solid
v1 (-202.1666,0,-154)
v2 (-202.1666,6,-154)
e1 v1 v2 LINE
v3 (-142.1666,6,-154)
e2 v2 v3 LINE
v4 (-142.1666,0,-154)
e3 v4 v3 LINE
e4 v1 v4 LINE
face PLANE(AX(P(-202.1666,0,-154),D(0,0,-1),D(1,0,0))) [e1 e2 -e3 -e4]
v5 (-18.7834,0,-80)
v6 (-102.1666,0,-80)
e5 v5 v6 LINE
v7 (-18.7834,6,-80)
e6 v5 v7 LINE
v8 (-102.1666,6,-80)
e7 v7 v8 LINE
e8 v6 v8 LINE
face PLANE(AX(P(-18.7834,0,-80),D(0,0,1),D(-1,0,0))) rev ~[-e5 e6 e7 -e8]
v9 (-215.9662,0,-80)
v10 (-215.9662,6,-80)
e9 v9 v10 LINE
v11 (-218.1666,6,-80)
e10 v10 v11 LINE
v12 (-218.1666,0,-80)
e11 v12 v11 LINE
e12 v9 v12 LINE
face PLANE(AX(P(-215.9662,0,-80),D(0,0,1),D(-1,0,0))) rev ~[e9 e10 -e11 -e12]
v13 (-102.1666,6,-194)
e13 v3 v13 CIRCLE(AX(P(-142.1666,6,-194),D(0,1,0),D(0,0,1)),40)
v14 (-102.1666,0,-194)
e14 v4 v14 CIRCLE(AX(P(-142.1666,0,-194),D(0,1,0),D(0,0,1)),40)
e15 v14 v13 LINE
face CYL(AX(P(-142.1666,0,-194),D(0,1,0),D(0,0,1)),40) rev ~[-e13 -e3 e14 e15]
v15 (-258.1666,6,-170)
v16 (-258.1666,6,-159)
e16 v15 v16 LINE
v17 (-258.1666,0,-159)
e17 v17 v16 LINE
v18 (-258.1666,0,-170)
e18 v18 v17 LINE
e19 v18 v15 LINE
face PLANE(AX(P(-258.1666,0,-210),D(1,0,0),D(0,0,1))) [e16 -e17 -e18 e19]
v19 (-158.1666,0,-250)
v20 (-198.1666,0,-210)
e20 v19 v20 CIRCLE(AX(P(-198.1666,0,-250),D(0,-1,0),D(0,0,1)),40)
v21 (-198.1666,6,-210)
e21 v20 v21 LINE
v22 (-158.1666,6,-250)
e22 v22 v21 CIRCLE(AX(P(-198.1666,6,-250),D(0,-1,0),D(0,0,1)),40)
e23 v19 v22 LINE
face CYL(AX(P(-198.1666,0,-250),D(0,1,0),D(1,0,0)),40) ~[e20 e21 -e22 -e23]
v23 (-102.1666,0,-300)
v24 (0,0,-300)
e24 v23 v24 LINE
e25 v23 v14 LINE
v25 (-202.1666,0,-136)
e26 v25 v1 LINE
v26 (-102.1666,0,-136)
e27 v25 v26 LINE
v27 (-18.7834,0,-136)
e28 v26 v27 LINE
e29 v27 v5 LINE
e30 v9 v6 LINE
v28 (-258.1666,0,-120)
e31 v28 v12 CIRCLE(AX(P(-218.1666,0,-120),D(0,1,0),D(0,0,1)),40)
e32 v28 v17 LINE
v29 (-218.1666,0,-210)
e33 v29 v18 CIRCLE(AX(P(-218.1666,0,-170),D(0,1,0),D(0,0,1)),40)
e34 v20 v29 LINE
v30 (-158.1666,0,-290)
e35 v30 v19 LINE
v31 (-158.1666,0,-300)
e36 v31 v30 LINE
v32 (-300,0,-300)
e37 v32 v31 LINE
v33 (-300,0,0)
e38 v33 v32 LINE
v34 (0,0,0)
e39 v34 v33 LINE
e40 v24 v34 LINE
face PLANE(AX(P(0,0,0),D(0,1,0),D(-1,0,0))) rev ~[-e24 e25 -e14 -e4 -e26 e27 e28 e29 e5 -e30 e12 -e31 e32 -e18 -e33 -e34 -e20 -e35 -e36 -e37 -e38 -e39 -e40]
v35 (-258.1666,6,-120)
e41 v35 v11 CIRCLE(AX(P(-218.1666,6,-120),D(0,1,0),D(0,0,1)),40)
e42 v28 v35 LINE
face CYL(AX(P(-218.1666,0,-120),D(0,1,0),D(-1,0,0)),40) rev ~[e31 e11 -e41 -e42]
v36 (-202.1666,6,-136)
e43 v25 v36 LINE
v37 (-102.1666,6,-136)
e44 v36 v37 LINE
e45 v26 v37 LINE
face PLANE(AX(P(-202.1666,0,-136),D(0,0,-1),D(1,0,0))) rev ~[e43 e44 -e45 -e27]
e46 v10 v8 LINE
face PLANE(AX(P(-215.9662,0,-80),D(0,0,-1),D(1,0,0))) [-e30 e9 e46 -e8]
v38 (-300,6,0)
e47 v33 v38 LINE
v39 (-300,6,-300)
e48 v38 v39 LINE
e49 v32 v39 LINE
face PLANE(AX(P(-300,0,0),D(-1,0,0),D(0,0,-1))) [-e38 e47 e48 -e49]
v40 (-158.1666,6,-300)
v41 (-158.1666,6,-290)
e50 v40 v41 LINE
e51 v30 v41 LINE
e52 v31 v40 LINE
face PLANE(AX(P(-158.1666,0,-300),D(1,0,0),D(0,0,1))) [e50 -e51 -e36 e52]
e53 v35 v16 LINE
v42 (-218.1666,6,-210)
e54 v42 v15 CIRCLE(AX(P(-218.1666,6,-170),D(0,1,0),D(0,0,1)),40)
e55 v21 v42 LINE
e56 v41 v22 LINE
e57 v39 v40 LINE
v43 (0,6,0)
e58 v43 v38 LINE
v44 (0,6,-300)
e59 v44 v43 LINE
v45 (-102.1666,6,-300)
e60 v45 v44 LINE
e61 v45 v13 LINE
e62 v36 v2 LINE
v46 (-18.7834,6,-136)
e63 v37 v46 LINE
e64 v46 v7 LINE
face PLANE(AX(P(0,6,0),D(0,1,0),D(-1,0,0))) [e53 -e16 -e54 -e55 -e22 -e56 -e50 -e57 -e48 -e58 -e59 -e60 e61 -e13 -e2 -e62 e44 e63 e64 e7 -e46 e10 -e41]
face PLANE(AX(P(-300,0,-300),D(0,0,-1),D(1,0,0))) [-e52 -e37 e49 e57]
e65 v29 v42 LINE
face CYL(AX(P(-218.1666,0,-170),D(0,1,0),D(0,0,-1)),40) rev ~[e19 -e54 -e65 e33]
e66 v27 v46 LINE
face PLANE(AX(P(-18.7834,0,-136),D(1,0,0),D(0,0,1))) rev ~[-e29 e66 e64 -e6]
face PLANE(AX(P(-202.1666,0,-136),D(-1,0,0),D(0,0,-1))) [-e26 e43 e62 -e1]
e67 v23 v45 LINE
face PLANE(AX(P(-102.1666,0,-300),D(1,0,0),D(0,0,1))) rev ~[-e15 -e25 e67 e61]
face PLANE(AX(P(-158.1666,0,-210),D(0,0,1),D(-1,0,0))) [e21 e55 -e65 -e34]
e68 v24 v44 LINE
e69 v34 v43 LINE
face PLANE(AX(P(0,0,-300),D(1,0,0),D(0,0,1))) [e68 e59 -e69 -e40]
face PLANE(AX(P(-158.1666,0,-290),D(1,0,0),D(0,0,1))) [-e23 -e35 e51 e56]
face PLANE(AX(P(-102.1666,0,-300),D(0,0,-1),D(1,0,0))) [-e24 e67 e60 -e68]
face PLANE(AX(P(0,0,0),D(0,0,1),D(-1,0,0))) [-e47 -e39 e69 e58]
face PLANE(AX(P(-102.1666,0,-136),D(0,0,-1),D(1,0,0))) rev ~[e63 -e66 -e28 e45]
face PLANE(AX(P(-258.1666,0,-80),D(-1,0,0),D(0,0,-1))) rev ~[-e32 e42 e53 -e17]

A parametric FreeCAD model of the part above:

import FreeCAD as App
import Part
import Sketcher


def edges_at(feature, points):
    """Names of the edges that pass closest to the given points."""
    edges = feature.Shape.Edges
    near = lambda p: min(range(len(edges)), key=lambda i: edges[i].distToShape(Part.Vertex(*p))[0])
    return sorted({f"Edge{near(p) + 1}" for p in points})

doc = App.newDocument("Part")
body = doc.addObject("PartDesign::Body", "Body")

sketch1 = doc.addObject("Sketcher::SketchObject", "Sketch")
body.addObject(sketch1)
sketch1.AttachmentSupport = (doc.XZ_Plane, [""])
sketch1.MapMode = "FlatFace"
sketch1.addGeometry([
    Part.LineSegment(App.Vector(-300, 0, 0), App.Vector(0, 0, 0)),
    Part.LineSegment(App.Vector(0, 0, 0), App.Vector(0, -300, 0)),
    Part.LineSegment(App.Vector(0, -300, 0), App.Vector(-102, -300, 0)),
    Part.LineSegment(App.Vector(-102, -300, 0), App.Vector(-102, -154, 0)),
    Part.LineSegment(App.Vector(-102, -154, 0), App.Vector(-202, -154, 0)),
    Part.LineSegment(App.Vector(-202, -154, 0), App.Vector(-202, -136, 0)),
    Part.LineSegment(App.Vector(-202, -136, 0), App.Vector(-19, -136, 0)),
    Part.LineSegment(App.Vector(-19, -136, 0), App.Vector(-19, -80, 0)),
    Part.LineSegment(App.Vector(-19, -80, 0), App.Vector(-258, -80, 0)),
    Part.LineSegment(App.Vector(-258, -80, 0), App.Vector(-258, -210, 0)),
    Part.LineSegment(App.Vector(-258, -210, 0), App.Vector(-158, -210, 0)),
    Part.LineSegment(App.Vector(-158, -210, 0), App.Vector(-158, -300, 0)),
    Part.LineSegment(App.Vector(-158, -300, 0), App.Vector(-300, -300, 0)),
    Part.LineSegment(App.Vector(-300, -300, 0), App.Vector(-300, 0, 0)),
], False)
sketch1.addConstraint([
    Sketcher.Constraint("Coincident", 0, 2, 1, 1),
    Sketcher.Constraint("Coincident", 1, 2, 2, 1),
    Sketcher.Constraint("Coincident", 2, 2, 3, 1),
    Sketcher.Constraint("Coincident", 3, 2, 4, 1),
    Sketcher.Constraint("Coincident", 4, 2, 5, 1),
    Sketcher.Constraint("Coincident", 5, 2, 6, 1),
    Sketcher.Constraint("Coincident", 6, 2, 7, 1),
    Sketcher.Constraint("Coincident", 7, 2, 8, 1),
    Sketcher.Constraint("Coincident", 8, 2, 9, 1),
    Sketcher.Constraint("Coincident", 9, 2, 10, 1),
    Sketcher.Constraint("Coincident", 10, 2, 11, 1),
    Sketcher.Constraint("Coincident", 11, 2, 12, 1),
    Sketcher.Constraint("Coincident", 12, 2, 13, 1),
    Sketcher.Constraint("Coincident", 13, 2, 0, 1),
    Sketcher.Constraint("Horizontal", 0),
    Sketcher.Constraint("Vertical", 1),
    Sketcher.Constraint("Horizontal", 2),
    Sketcher.Constraint("Vertical", 3),
    Sketcher.Constraint("Horizontal", 4),
    Sketcher.Constraint("Vertical", 5),
    Sketcher.Constraint("Horizontal", 6),
    Sketcher.Constraint("Vertical", 7),
    Sketcher.Constraint("Horizontal", 8),
    Sketcher.Constraint("Vertical", 9),
    Sketcher.Constraint("Horizontal", 10),
    Sketcher.Constraint("Vertical", 11),
    Sketcher.Constraint("Horizontal", 12),
    Sketcher.Constraint("Vertical", 13),
    Sketcher.Constraint("Coincident", 0, 2, -1, 1),
    Sketcher.Constraint("Horizontal", 2, 2, 11, 2),
    Sketcher.Constraint("Equal", 4, 10),
    Sketcher.Constraint("Equal", 0, 1),
    Sketcher.Constraint("DistanceX", 0, 1, 0, 2, 300.0),
    Sketcher.Constraint("DistanceX", 4, 2, 4, 1, 100.0),
    Sketcher.Constraint("DistanceY", 3, 1, 3, 2, 146.0),
    Sketcher.Constraint("DistanceY", 7, 1, 7, 2, 56.0),
    Sketcher.Constraint("DistanceY", 9, 2, 9, 1, 130.0),
    Sketcher.Constraint("DistanceY", 11, 2, 11, 1, 90.0),
    Sketcher.Constraint("DistanceX", 8, 2, 5, 2, 56.0),
    Sketcher.Constraint("DistanceX", 2, 2, 2, 1, 102.1666),
    Sketcher.Constraint("DistanceX", 6, 1, 6, 2, 183.3832),
])
pad1 = doc.addObject("PartDesign::Pad", "Pad")
body.addObject(pad1)
pad1.Profile = sketch1
pad1.Length = 6
pad1.Reversed = True
doc.recompute()

fillet = doc.addObject("PartDesign::Fillet", "Fillet")
body.addObject(fillet)
fillet.Base = (pad1, edges_at(pad1, [
    (-102.167, 3, -154),
    (-158.167, 3, -210),
    (-258.167, 3, -210),
    (-258.167, 3, -80),
]))
fillet.Radius = 40

doc.recompute()
